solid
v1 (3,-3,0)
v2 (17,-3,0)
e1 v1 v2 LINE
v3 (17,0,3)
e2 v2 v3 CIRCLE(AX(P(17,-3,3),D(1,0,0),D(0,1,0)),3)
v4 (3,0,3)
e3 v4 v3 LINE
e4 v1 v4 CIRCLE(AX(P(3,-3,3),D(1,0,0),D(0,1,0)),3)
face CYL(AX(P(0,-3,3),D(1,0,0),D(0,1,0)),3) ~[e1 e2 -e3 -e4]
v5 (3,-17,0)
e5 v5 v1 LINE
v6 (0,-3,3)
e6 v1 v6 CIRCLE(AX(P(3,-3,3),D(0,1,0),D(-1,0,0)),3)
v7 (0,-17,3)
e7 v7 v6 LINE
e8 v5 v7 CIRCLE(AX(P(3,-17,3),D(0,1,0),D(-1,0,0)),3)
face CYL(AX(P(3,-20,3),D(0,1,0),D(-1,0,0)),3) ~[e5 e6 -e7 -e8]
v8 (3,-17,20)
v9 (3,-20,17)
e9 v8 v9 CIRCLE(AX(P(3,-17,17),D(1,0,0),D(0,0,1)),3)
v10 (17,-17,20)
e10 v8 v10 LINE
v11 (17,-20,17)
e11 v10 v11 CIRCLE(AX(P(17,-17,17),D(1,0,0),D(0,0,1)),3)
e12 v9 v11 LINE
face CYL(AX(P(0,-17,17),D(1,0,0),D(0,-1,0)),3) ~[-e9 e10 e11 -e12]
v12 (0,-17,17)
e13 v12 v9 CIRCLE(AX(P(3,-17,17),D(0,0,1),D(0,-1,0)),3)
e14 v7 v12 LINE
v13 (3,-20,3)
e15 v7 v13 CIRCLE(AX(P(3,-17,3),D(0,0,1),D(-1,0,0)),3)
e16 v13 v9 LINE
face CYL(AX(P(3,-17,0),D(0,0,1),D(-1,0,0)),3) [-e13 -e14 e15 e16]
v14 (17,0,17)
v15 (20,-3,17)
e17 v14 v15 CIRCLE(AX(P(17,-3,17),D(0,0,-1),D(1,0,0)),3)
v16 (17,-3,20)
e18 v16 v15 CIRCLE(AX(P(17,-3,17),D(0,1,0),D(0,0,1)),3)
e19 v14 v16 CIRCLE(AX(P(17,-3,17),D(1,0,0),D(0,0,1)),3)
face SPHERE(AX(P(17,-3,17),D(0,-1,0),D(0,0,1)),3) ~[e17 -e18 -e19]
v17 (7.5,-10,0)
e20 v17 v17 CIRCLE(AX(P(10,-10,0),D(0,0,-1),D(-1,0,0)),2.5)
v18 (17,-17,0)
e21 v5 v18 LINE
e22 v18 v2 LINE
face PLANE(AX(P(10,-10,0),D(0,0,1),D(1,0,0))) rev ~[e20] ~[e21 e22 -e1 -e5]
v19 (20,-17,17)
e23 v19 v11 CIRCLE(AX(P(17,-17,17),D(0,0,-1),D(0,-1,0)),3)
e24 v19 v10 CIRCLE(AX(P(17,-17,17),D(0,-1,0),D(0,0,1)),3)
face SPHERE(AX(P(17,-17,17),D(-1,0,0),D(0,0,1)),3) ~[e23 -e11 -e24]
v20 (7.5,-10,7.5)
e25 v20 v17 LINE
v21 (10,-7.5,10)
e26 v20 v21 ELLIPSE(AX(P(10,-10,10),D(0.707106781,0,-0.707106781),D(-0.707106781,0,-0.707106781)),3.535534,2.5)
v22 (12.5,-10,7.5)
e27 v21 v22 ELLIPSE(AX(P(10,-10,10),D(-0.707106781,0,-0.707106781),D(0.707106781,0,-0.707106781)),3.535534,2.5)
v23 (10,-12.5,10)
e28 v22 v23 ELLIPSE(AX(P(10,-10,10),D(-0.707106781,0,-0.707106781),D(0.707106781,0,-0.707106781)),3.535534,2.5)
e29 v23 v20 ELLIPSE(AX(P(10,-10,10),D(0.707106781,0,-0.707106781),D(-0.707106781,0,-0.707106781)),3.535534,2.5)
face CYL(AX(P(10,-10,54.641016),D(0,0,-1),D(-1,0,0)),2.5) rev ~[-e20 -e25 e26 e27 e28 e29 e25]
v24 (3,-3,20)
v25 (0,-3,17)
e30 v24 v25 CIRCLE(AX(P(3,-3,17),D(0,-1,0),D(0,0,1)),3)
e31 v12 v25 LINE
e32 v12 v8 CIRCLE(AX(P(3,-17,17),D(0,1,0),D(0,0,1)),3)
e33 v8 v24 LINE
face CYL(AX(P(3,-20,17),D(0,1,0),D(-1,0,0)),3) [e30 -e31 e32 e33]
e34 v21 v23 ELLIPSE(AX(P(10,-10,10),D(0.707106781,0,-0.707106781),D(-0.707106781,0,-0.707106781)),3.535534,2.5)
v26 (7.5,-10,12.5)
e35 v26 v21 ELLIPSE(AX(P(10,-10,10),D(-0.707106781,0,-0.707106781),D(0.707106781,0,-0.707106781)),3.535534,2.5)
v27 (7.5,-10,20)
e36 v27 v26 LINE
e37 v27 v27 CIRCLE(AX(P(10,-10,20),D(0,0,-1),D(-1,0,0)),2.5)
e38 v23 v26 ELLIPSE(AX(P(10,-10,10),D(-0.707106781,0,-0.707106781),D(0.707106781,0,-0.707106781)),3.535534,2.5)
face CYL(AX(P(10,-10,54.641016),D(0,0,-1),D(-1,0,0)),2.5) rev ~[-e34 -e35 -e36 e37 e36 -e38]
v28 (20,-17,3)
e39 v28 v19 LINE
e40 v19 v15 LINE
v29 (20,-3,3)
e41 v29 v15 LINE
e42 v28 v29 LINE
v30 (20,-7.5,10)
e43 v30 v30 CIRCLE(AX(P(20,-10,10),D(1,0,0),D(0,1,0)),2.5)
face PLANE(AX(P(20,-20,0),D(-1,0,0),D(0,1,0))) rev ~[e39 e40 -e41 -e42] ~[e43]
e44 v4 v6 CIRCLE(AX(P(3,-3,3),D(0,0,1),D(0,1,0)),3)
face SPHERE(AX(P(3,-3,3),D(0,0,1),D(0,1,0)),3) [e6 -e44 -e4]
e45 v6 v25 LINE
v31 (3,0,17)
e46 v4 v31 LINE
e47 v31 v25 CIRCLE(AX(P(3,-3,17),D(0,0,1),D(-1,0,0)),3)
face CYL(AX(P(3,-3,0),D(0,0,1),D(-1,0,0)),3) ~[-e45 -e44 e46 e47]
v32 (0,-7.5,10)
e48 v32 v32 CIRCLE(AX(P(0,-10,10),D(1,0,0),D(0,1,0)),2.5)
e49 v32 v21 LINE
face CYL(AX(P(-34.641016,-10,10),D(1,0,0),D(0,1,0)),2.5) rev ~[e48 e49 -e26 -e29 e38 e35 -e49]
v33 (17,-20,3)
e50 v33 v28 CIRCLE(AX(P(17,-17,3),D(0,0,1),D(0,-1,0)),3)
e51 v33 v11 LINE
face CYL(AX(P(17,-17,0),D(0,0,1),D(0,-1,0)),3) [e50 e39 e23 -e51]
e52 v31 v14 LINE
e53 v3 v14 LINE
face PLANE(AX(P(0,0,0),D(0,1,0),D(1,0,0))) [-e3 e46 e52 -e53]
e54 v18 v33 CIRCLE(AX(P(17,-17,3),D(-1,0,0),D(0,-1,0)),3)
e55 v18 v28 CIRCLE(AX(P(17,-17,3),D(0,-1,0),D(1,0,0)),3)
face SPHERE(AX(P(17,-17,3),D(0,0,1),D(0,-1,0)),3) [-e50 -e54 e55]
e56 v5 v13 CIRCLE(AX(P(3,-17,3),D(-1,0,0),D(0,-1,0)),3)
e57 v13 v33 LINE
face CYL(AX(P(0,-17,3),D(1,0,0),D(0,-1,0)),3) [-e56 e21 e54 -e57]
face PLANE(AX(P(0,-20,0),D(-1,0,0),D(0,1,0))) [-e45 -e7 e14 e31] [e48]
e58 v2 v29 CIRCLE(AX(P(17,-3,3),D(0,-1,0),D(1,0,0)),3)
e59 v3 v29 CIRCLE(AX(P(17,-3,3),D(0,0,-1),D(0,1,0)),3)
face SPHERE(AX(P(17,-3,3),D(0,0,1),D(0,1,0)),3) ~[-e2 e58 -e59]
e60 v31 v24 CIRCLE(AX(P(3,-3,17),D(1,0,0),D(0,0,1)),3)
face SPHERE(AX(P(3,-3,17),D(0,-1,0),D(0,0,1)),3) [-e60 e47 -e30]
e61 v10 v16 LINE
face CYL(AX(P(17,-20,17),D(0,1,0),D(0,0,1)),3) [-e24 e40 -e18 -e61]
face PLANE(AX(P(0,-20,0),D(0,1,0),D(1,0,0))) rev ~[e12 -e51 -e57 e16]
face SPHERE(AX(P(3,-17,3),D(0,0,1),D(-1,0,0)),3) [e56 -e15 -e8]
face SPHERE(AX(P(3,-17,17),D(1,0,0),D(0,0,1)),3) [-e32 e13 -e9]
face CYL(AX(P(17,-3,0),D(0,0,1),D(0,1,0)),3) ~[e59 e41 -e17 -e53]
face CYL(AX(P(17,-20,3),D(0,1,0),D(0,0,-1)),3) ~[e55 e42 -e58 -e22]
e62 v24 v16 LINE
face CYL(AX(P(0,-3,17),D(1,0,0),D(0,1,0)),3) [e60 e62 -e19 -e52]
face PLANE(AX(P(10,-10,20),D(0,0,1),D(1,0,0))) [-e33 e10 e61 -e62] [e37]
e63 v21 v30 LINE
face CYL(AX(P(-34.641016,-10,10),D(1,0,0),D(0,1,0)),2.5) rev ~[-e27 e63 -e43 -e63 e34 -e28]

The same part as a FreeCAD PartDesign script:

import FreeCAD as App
import Part
import Sketcher

V = App.Vector


def edges_at(feature, points):
    """Names of the edges that pass closest to the given points."""
    edges = feature.Shape.Edges
    near = lambda p: min(range(len(edges)), key=lambda i: edges[i].distToShape(Part.Vertex(*p))[0])
    return sorted({f"Edge{near(p) + 1}" for p in points})


def add_polygon(sketch, points):
    """Adds a closed chain of lines whose ends are joined by coincident constraints."""
    first, n = sketch.GeometryCount, len(points)
    for a, b in zip(points, points[1:] + points[:1]):
        sketch.addGeometry(Part.LineSegment(App.Vector(*a, 0), App.Vector(*b, 0)), False)
    for i in range(n):
        sketch.addConstraint(Sketcher.Constraint("Coincident", first + i, 2, first + (i + 1) % n, 1))

doc = App.newDocument("Part")
body = doc.addObject("PartDesign::Body", "Body")

# Sketch on XY plane
sketch1 = body.newObject("Sketcher::SketchObject", "Sketch")
sketch1.AttachmentSupport = (doc.getObject("XY_Plane"), [""])
sketch1.MapMode = "FlatFace"
add_polygon(sketch1, [(0, 0), (0, -20), (20, -20), (20, 0)])  # lines 0-3
sketch1.addConstraint(Sketcher.Constraint("Vertical", 0))
sketch1.addConstraint(Sketcher.Constraint("Horizontal", 1))
sketch1.addConstraint(Sketcher.Constraint("Vertical", 2))
sketch1.addConstraint(Sketcher.Constraint("Horizontal", 3))
sketch1.addConstraint(Sketcher.Constraint("Coincident", 3, 2, -1, 1))
sketch1.addConstraint(Sketcher.Constraint("Equal", 3, 0))
sketch1.addConstraint(Sketcher.Constraint("DistanceX", 1, 1, 1, 2, 20.0))
pad1 = body.newObject("PartDesign::Pad", "Pad")
pad1.Profile = sketch1
pad1.Length = 20

# Sketch on XY plane
sketch2 = body.newObject("Sketcher::SketchObject", "Sketch001")
sketch2.AttachmentSupport = (doc.getObject("XY_Plane"), [""])
sketch2.MapMode = "FlatFace"
sketch2.AttachmentOffset = App.Placement(V(0, 0, 20), App.Rotation())
sketch2.addGeometry(Part.Circle(V(10, -10, 0), V(0, 0, 1), 2.5), False)
sketch2.addConstraint(Sketcher.Constraint("Diameter", 0, 5.0))
sketch2.addConstraint(Sketcher.Constraint("DistanceX", -1, 1, 0, 3, 10.0))
sketch2.addConstraint(Sketcher.Constraint("DistanceY", 0, 3, -1, 1, 10.0))
doc.recompute()
hole = body.newObject("PartDesign::Hole", "Hole")
hole.Profile = sketch2
hole.ThreadType = "None"
hole.Diameter = 5
hole.DepthType = "ThroughAll"
doc.recompute()

fillet = body.newObject("PartDesign::Fillet", "Fillet")
fillet.Base = (hole, edges_at(hole, [
    (10, -20, 20),
    (0, -10, 20),
    (20, -10, 20),
    (10, 0, 20),
    (0, -20, 10),
    (20, -20, 10),
    (20, 0, 10),
    (0, 0, 10),
    (10, 0, 0),
    (0, -10, 0),
    (10, -20, 0),
    (20, -10, 0),
]))
fillet.Radius = 3

# Sketch on YZ plane
sketch3 = body.newObject("Sketcher::SketchObject", "Sketch002")
sketch3.AttachmentSupport = (doc.getObject("YZ_Plane"), [""])
sketch3.MapMode = "FlatFace"
sketch3.addGeometry(Part.Circle(V(-10, 10, 0), V(0, 0, 1), 2.5), False)
sketch3.addConstraint(Sketcher.Constraint("Diameter", 0, 5.0))
sketch3.addConstraint(Sketcher.Constraint("DistanceX", 0, 3, -1, 1, 10.0))
sketch3.addConstraint(Sketcher.Constraint("DistanceY", -1, 1, 0, 3, 10.0))
doc.recompute()
hole2 = body.newObject("PartDesign::Hole", "Hole001")
hole2.Profile = sketch3
hole2.ThreadType = "None"
hole2.Diameter = 5
hole2.DepthType = "ThroughAll"
hole2.Reversed = True

doc.recompute()
